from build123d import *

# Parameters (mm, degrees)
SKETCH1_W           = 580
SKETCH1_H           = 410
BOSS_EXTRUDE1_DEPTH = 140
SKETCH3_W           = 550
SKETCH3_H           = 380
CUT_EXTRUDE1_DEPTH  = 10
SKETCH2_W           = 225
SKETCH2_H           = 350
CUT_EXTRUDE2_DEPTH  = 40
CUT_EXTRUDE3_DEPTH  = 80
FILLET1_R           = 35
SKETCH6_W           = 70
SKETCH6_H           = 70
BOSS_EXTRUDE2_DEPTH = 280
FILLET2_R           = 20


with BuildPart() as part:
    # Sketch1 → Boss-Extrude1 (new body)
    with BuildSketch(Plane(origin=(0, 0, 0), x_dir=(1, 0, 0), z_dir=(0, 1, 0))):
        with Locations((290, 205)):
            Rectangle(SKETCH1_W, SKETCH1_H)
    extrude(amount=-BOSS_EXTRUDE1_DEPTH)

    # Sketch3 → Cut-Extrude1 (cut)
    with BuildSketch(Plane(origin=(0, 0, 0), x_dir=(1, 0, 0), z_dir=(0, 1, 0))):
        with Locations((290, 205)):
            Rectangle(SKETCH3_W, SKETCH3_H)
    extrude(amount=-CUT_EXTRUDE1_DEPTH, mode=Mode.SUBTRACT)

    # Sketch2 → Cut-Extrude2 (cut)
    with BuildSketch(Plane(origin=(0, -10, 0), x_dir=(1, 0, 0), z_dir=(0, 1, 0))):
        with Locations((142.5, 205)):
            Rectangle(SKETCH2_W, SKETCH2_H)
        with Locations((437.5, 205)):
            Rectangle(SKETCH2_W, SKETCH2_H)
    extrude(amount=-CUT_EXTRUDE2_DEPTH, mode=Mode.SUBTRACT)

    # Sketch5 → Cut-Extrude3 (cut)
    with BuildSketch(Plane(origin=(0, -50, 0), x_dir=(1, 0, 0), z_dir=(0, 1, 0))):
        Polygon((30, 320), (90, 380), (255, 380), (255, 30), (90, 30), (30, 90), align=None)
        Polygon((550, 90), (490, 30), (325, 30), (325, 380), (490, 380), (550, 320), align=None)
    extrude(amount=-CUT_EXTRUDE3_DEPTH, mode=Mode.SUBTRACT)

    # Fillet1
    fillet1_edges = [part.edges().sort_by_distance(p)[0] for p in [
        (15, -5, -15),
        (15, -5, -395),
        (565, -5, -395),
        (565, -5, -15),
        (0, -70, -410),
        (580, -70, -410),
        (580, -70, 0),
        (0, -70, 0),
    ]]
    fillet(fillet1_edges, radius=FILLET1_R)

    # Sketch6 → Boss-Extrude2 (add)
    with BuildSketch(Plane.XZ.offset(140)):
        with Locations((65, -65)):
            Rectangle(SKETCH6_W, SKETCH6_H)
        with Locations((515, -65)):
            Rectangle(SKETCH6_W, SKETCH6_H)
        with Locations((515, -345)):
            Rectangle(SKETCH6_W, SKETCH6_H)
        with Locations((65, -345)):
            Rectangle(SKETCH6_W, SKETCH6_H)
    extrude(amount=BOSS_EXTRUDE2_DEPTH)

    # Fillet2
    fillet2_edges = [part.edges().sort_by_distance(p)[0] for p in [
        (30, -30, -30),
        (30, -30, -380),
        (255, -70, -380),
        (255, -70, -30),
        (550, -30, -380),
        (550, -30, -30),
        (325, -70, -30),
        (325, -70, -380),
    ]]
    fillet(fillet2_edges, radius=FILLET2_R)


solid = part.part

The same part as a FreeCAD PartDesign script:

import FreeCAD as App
import Part
import Sketcher

V = App.Vector


def edges_at(feature, points):
    """Names of the edges that pass closest to the given points."""
    edges = feature.Shape.Edges
    near = lambda p: min(range(len(edges)), key=lambda i: edges[i].distToShape(Part.Vertex(*p))[0])
    return sorted({f"Edge{near(p) + 1}" for p in points})

doc = App.newDocument("Part")
params = doc.addObject("Spreadsheet::Sheet", "Params")
for row, (alias, value) in enumerate([
    ("sketch1_width", "580 mm"),
    ("sketch1_height", "410 mm"),
    ("pad1_length", "140 mm"),
    ("sketch2_width", "550 mm"),
    ("sketch2_height", "380 mm"),
    ("pocket1_length", "10 mm"),
    ("sketch3_width", "225 mm"),
    ("sketch3_height", "350 mm"),
    ("pocket2_length", "40 mm"),
    ("sketch4_width", "165 mm"),
    ("sketch4_height", "230 mm"),
    ("sketch4_height2", "350 mm"),
    ("pocket3_length", "80 mm"),
    ("fillet_radius", "35 mm"),
    ("sketch5_width", "70 mm"),
    ("pad2_length", "280 mm"),
    ("fillet2_radius", "20 mm"),
], start=1):
    params.set(f"A{row}", alias)
    params.set(f"B{row}", "=" + value)
    params.setAlias(f"B{row}", alias)

body = doc.addObject("PartDesign::Body", "Body")

# Sketch on XZ plane
sketch1 = body.newObject("Sketcher::SketchObject", "Sketch")
sketch1.AttachmentSupport = (doc.getObject("XZ_Plane"), [""])
sketch1.MapMode = "FlatFace"
sketch1.addGeometry([
    Part.LineSegment(V(0, -410, 0), V(0, 0, 0)),
    Part.LineSegment(V(0, 0, 0), V(580, 0, 0)),
    Part.LineSegment(V(580, 0, 0), V(580, -410, 0)),
    Part.LineSegment(V(580, -410, 0), V(0, -410, 0)),
], False)
sketch1.addConstraint([
    Sketcher.Constraint("Coincident", 0, 2, 1, 1),
    Sketcher.Constraint("Coincident", 1, 2, 2, 1),
    Sketcher.Constraint("Coincident", 2, 2, 3, 1),
    Sketcher.Constraint("Coincident", 3, 2, 0, 1),
    Sketcher.Constraint("Vertical", 0),
    Sketcher.Constraint("Horizontal", 1),
    Sketcher.Constraint("Vertical", 2),
    Sketcher.Constraint("Horizontal", 3),
    Sketcher.Constraint("Coincident", 0, 2, -1, 1),
    Sketcher.Constraint("DistanceX", 1, 1, 1, 2, 580.0),
    Sketcher.Constraint("DistanceY", 0, 1, 0, 2, 410.0),
])
sketch1.setExpression("Constraints[9]", "Params.sketch1_width")
sketch1.setExpression("Constraints[10]", "Params.sketch1_height")
pad1 = body.newObject("PartDesign::Pad", "Pad")
pad1.Profile = sketch1
pad1.setExpression("Length", "Params.pad1_length")

# Sketch on XZ plane
sketch2 = body.newObject("Sketcher::SketchObject", "Sketch001")
sketch2.AttachmentSupport = (doc.getObject("XZ_Plane"), [""])
sketch2.MapMode = "FlatFace"
sketch2.addGeometry([
    Part.LineSegment(V(15, -395, 0), V(15, -15, 0)),
    Part.LineSegment(V(15, -15, 0), V(565, -15, 0)),
    Part.LineSegment(V(565, -15, 0), V(565, -395, 0)),
    Part.LineSegment(V(565, -395, 0), V(15, -395, 0)),
], False)
sketch2.addConstraint([
    Sketcher.Constraint("Coincident", 0, 2, 1, 1),
    Sketcher.Constraint("Coincident", 1, 2, 2, 1),
    Sketcher.Constraint("Coincident", 2, 2, 3, 1),
    Sketcher.Constraint("Coincident", 3, 2, 0, 1),
    Sketcher.Constraint("Vertical", 0),
    Sketcher.Constraint("Horizontal", 1),
    Sketcher.Constraint("Vertical", 2),
    Sketcher.Constraint("Horizontal", 3),
    Sketcher.Constraint("DistanceX", 1, 1, 1, 2, 550.0),
    Sketcher.Constraint("DistanceY", 0, 1, 0, 2, 380.0),
    Sketcher.Constraint("DistanceX", -1, 1, 0, 2, 15.0),
    Sketcher.Constraint("DistanceY", 0, 2, -1, 1, 15.0),
])
sketch2.setExpression("Constraints[8]", "Params.sketch2_width")
sketch2.setExpression("Constraints[9]", "Params.sketch2_height")
pocket1 = body.newObject("PartDesign::Pocket", "Pocket")
pocket1.Profile = sketch2
pocket1.setExpression("Length", "Params.pocket1_length")
pocket1.Reversed = True

# Sketch on XZ plane
sketch3 = body.newObject("Sketcher::SketchObject", "Sketch002")
sketch3.AttachmentSupport = (doc.getObject("XZ_Plane"), [""])
sketch3.MapMode = "FlatFace"
sketch3.AttachmentOffset = App.Placement(V(0, 0, 10), App.Rotation())
sketch3.addGeometry([
    Part.LineSegment(V(30, -380, 0), V(30, -30, 0)),  # 0
    Part.LineSegment(V(30, -30, 0), V(255, -30, 0)),  # 1
    Part.LineSegment(V(255, -30, 0), V(255, -380, 0)),  # 2
    Part.LineSegment(V(255, -380, 0), V(30, -380, 0)),  # 3
    Part.LineSegment(V(325, -380, 0), V(325, -30, 0)),  # 4
    Part.LineSegment(V(325, -30, 0), V(550, -30, 0)),  # 5
    Part.LineSegment(V(550, -30, 0), V(550, -380, 0)),  # 6
    Part.LineSegment(V(550, -380, 0), V(325, -380, 0)),  # 7
], False)
sketch3.addConstraint([
    Sketcher.Constraint("Coincident", 0, 2, 1, 1),
    Sketcher.Constraint("Coincident", 1, 2, 2, 1),
    Sketcher.Constraint("Coincident", 2, 2, 3, 1),
    Sketcher.Constraint("Coincident", 3, 2, 0, 1),
    Sketcher.Constraint("Coincident", 4, 2, 5, 1),
    Sketcher.Constraint("Coincident", 5, 2, 6, 1),
    Sketcher.Constraint("Coincident", 6, 2, 7, 1),
    Sketcher.Constraint("Coincident", 7, 2, 4, 1),
    Sketcher.Constraint("Vertical", 0),
    Sketcher.Constraint("Horizontal", 1),
    Sketcher.Constraint("Vertical", 2),
    Sketcher.Constraint("Horizontal", 3),
    Sketcher.Constraint("Vertical", 4),
    Sketcher.Constraint("Horizontal", 5),
    Sketcher.Constraint("Vertical", 6),
    Sketcher.Constraint("Horizontal", 7),
    Sketcher.Constraint("Horizontal", 1, 2, 4, 2),
    Sketcher.Constraint("Horizontal", 3, 2, 6, 2),
    Sketcher.Constraint("Equal", 3, 5),
    Sketcher.Constraint("DistanceX", 1, 1, 1, 2, 225.0),
    Sketcher.Constraint("DistanceY", 0, 1, 0, 2, 350.0),
    Sketcher.Constraint("DistanceX", -1, 1, 0, 2, 30.0),
    Sketcher.Constraint("DistanceY", 0, 2, -1, 1, 30.0),
    Sketcher.Constraint("DistanceX", -1, 1, 4, 2, 325.0),
])
sketch3.setExpression("Constraints[19]", "Params.sketch3_width")
sketch3.setExpression("Constraints[20]", "Params.sketch3_height")
pocket2 = body.newObject("PartDesign::Pocket", "Pocket001")
pocket2.Profile = sketch3
pocket2.setExpression("Length", "Params.pocket2_length")
pocket2.Reversed = True

# Sketch on XZ plane
sketch4 = body.newObject("Sketcher::SketchObject", "Sketch003")
sketch4.AttachmentSupport = (doc.getObject("XZ_Plane"), [""])
sketch4.MapMode = "FlatFace"
sketch4.AttachmentOffset = App.Placement(V(0, 0, 50), App.Rotation())
sketch4.addGeometry([
    Part.LineSegment(V(90, -380, 0), V(30, -320, 0)),  # 0
    Part.LineSegment(V(30, -320, 0), V(30, -90, 0)),  # 1
    Part.LineSegment(V(30, -90, 0), V(90, -30, 0)),  # 2
    Part.LineSegment(V(90, -30, 0), V(255, -30, 0)),  # 3
    Part.LineSegment(V(255, -30, 0), V(255, -380, 0)),  # 4
    Part.LineSegment(V(255, -380, 0), V(90, -380, 0)),  # 5
    Part.LineSegment(V(490, -30, 0), V(550, -90, 0)),  # 6
    Part.LineSegment(V(550, -90, 0), V(550, -320, 0)),  # 7
    Part.LineSegment(V(550, -320, 0), V(490, -380, 0)),  # 8
    Part.LineSegment(V(490, -380, 0), V(325, -380, 0)),  # 9
    Part.LineSegment(V(325, -380, 0), V(325, -30, 0)),  # 10
    Part.LineSegment(V(325, -30, 0), V(490, -30, 0)),  # 11
], False)
sketch4.addConstraint([
    Sketcher.Constraint("Coincident", 0, 2, 1, 1),
    Sketcher.Constraint("Coincident", 1, 2, 2, 1),
    Sketcher.Constraint("Coincident", 2, 2, 3, 1),
    Sketcher.Constraint("Coincident", 3, 2, 4, 1),
    Sketcher.Constraint("Coincident", 4, 2, 5, 1),
    Sketcher.Constraint("Coincident", 5, 2, 0, 1),
    Sketcher.Constraint("Coincident", 6, 2, 7, 1),
    Sketcher.Constraint("Coincident", 7, 2, 8, 1),
    Sketcher.Constraint("Coincident", 8, 2, 9, 1),
    Sketcher.Constraint("Coincident", 9, 2, 10, 1),
    Sketcher.Constraint("Coincident", 10, 2, 11, 1),
    Sketcher.Constraint("Coincident", 11, 2, 6, 1),
    Sketcher.Constraint("Vertical", 1),
    Sketcher.Constraint("Horizontal", 3),
    Sketcher.Constraint("Vertical", 4),
    Sketcher.Constraint("Horizontal", 5),
    Sketcher.Constraint("Vertical", 7),
    Sketcher.Constraint("Horizontal", 9),
    Sketcher.Constraint("Vertical", 10),
    Sketcher.Constraint("Horizontal", 11),
    Sketcher.Constraint("Perpendicular", 0, 2),
    Sketcher.Constraint("Perpendicular", 2, 6),
    Sketcher.Constraint("Perpendicular", 6, 8),
    Sketcher.Constraint("Horizontal", 1, 2, 6, 2),
    Sketcher.Constraint("Horizontal", 0, 2, 7, 2),
    Sketcher.Constraint("Horizontal", 5, 2, 8, 2),
    Sketcher.Constraint("Horizontal", 3, 2, 10, 2),
    Sketcher.Constraint("Vertical", 2, 2, 5, 2),
    Sketcher.Constraint("Vertical", 8, 2, 11, 2),
    Sketcher.Constraint("Equal", 5, 9),
    Sketcher.Constraint("DistanceX", 3, 1, 3, 2, 165.0),
    Sketcher.Constraint("DistanceY", 1, 1, 1, 2, 230.0),
    Sketcher.Constraint("DistanceY", 4, 2, 4, 1, 350.0),
    Sketcher.Constraint("DistanceX", -1, 1, 0, 2, 30.0),
    Sketcher.Constraint("DistanceY", 0, 2, -1, 1, 320.0),
    Sketcher.Constraint("DistanceX", -1, 1, 6, 2, 550.0),
])
sketch4.setExpression("Constraints[30]", "Params.sketch4_width")
sketch4.setExpression("Constraints[31]", "Params.sketch4_height")
sketch4.setExpression("Constraints[32]", "Params.sketch4_height2")
pocket3 = body.newObject("PartDesign::Pocket", "Pocket002")
pocket3.Profile = sketch4
pocket3.setExpression("Length", "Params.pocket3_length")
pocket3.Reversed = True
doc.recompute()

fillet = body.newObject("PartDesign::Fillet", "Fillet")
fillet.Base = (pocket3, edges_at(pocket3, [
    (15, -5, -15),
    (15, -5, -395),
    (565, -5, -395),
    (565, -5, -15),
    (0, -70, -410),
    (580, -70, -410),
    (580, -70, 0),
    (0, -70, 0),
]))
fillet.setExpression("Radius", "Params.fillet_radius")

# Sketch on XZ plane
sketch5 = body.newObject("Sketcher::SketchObject", "Sketch004")
sketch5.AttachmentSupport = (doc.getObject("XZ_Plane"), [""])
sketch5.MapMode = "FlatFace"
sketch5.AttachmentOffset = App.Placement(V(0, 0, 140), App.Rotation())
sketch5.addGeometry([
    Part.LineSegment(V(30, -30, 0), V(30, -100, 0)),  # 0
    Part.LineSegment(V(30, -100, 0), V(100, -100, 0)),  # 1
    Part.LineSegment(V(100, -100, 0), V(100, -30, 0)),  # 2
    Part.LineSegment(V(100, -30, 0), V(30, -30, 0)),  # 3
    Part.LineSegment(V(480, -30, 0), V(480, -100, 0)),  # 4
    Part.LineSegment(V(480, -100, 0), V(550, -100, 0)),  # 5
    Part.LineSegment(V(550, -100, 0), V(550, -30, 0)),  # 6
    Part.LineSegment(V(550, -30, 0), V(480, -30, 0)),  # 7
    Part.LineSegment(V(480, -310, 0), V(480, -380, 0)),  # 8
    Part.LineSegment(V(480, -380, 0), V(550, -380, 0)),  # 9
    Part.LineSegment(V(550, -380, 0), V(550, -310, 0)),  # 10
    Part.LineSegment(V(550, -310, 0), V(480, -310, 0)),  # 11
    Part.LineSegment(V(30, -310, 0), V(30, -380, 0)),  # 12
    Part.LineSegment(V(30, -380, 0), V(100, -380, 0)),  # 13
    Part.LineSegment(V(100, -380, 0), V(100, -310, 0)),  # 14
    Part.LineSegment(V(100, -310, 0), V(30, -310, 0)),  # 15
], False)
sketch5.addConstraint([
    Sketcher.Constraint("Coincident", 0, 2, 1, 1),
    Sketcher.Constraint("Coincident", 1, 2, 2, 1),
    Sketcher.Constraint("Coincident", 2, 2, 3, 1),
    Sketcher.Constraint("Coincident", 3, 2, 0, 1),
    Sketcher.Constraint("Coincident", 4, 2, 5, 1),
    Sketcher.Constraint("Coincident", 5, 2, 6, 1),
    Sketcher.Constraint("Coincident", 6, 2, 7, 1),
    Sketcher.Constraint("Coincident", 7, 2, 4, 1),
    Sketcher.Constraint("Coincident", 8, 2, 9, 1),
    Sketcher.Constraint("Coincident", 9, 2, 10, 1),
    Sketcher.Constraint("Coincident", 10, 2, 11, 1),
    Sketcher.Constraint("Coincident", 11, 2, 8, 1),
    Sketcher.Constraint("Coincident", 12, 2, 13, 1),
    Sketcher.Constraint("Coincident", 13, 2, 14, 1),
    Sketcher.Constraint("Coincident", 14, 2, 15, 1),
    Sketcher.Constraint("Coincident", 15, 2, 12, 1),
    Sketcher.Constraint("Vertical", 0),
    Sketcher.Constraint("Horizontal", 1),
    Sketcher.Constraint("Vertical", 2),
    Sketcher.Constraint("Horizontal", 3),
    Sketcher.Constraint("Vertical", 4),
    Sketcher.Constraint("Horizontal", 5),
    Sketcher.Constraint("Vertical", 6),
    Sketcher.Constraint("Horizontal", 7),
    Sketcher.Constraint("Vertical", 8),
    Sketcher.Constraint("Horizontal", 9),
    Sketcher.Constraint("Vertical", 10),
    Sketcher.Constraint("Horizontal", 11),
    Sketcher.Constraint("Vertical", 12),
    Sketcher.Constraint("Horizontal", 13),
    Sketcher.Constraint("Vertical", 14),
    Sketcher.Constraint("Horizontal", 15),
    Sketcher.Constraint("Horizontal", 1, 2, 4, 2),
    Sketcher.Constraint("Horizontal", 3, 2, 6, 2),
    Sketcher.Constraint("Horizontal", 9, 2, 12, 2),
    Sketcher.Constraint("Horizontal", 11, 2, 14, 2),
    Sketcher.Constraint("Vertical", 7, 2, 8, 2),
    Sketcher.Constraint("Vertical", 6, 2, 9, 2),
    Sketcher.Constraint("Vertical", 3, 2, 12, 2),
    Sketcher.Constraint("Vertical", 2, 2, 13, 2),
    Sketcher.Constraint("Equal", 3, 5),
    Sketcher.Constraint("Equal", 15, 0),
    Sketcher.Constraint("Equal", 6, 8),
    Sketcher.Constraint("DistanceX", 1, 1, 1, 2, 70.0),
    Sketcher.Constraint("DistanceX", -1, 1, 0, 2, 30.0),
    Sketcher.Constraint("DistanceY", 0, 2, -1, 1, 100.0),
    Sketcher.Constraint("DistanceX", -1, 1, 4, 2, 480.0),
    Sketcher.Constraint("DistanceY", 8, 2, -1, 1, 380.0),
])
sketch5.setExpression("Constraints[43]", "Params.sketch5_width")
pad2 = body.newObject("PartDesign::Pad", "Pad001")
pad2.Profile = sketch5
pad2.setExpression("Length", "Params.pad2_length")
doc.recompute()

fillet2 = body.newObject("PartDesign::Fillet", "Fillet001")
fillet2.Base = (pad2, edges_at(pad2, [
    (30, -30, -30),
    (30, -30, -380),
    (255, -70, -380),
    (255, -70, -30),
    (550, -30, -380),
    (550, -30, -30),
    (325, -70, -30),
    (325, -70, -380),
]))
fillet2.setExpression("Radius", "Params.fillet2_radius")

doc.recompute()
